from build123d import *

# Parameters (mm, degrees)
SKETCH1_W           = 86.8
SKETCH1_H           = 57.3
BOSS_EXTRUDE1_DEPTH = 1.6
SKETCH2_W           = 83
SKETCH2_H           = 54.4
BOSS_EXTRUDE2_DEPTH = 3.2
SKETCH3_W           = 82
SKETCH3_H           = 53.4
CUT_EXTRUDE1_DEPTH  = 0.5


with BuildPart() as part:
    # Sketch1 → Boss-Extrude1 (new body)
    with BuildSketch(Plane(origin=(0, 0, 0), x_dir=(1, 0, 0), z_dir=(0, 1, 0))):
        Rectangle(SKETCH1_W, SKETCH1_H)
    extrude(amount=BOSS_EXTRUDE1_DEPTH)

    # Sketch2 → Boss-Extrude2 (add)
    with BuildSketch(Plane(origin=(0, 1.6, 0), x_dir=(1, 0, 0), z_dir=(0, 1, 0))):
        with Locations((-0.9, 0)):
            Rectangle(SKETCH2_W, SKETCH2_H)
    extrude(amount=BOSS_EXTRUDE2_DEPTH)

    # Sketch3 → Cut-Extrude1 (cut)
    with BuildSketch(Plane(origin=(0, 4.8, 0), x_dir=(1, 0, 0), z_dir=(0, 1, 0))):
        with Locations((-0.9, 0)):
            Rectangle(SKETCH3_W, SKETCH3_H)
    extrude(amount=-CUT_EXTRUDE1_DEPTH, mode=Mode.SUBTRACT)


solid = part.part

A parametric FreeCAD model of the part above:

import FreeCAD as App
import Part
import Sketcher

doc = App.newDocument("Part")
body = doc.addObject("PartDesign::Body", "Body")

sketch1 = body.newObject("Sketcher::SketchObject", "Sketch")
sketch1.AttachmentSupport = (doc.getObject("XZ_Plane"), [""])
sketch1.MapMode = "FlatFace"
sketch1.addGeometry(Part.LineSegment(App.Vector(-43, -29, 0), App.Vector(-43, 29, 0)), False)
sketch1.addGeometry(Part.LineSegment(App.Vector(-43, 29, 0), App.Vector(43, 29, 0)), False)
sketch1.addGeometry(Part.LineSegment(App.Vector(43, 29, 0), App.Vector(43, -29, 0)), False)
sketch1.addGeometry(Part.LineSegment(App.Vector(43, -29, 0), App.Vector(-43, -29, 0)), False)
sketch1.addConstraint(Sketcher.Constraint("Coincident", 0, 2, 1, 1))
sketch1.addConstraint(Sketcher.Constraint("Coincident", 1, 2, 2, 1))
sketch1.addConstraint(Sketcher.Constraint("Coincident", 2, 2, 3, 1))
sketch1.addConstraint(Sketcher.Constraint("Coincident", 3, 2, 0, 1))
sketch1.addConstraint(Sketcher.Constraint("Vertical", 0))
sketch1.addConstraint(Sketcher.Constraint("Horizontal", 1))
sketch1.addConstraint(Sketcher.Constraint("Vertical", 2))
sketch1.addConstraint(Sketcher.Constraint("Horizontal", 3))
sketch1.addConstraint(Sketcher.Constraint("Symmetric", 0, 2, 2, 2, -1, 1))
sketch1.addConstraint(Sketcher.Constraint("DistanceX", 1, 1, 1, 2, 86.8))
sketch1.addConstraint(Sketcher.Constraint("DistanceY", 0, 1, 0, 2, 57.3))
pad1 = body.newObject("PartDesign::Pad", "Pad")
pad1.Profile = sketch1
pad1.Length = 1.6
pad1.Reversed = True

sketch2 = body.newObject("Sketcher::SketchObject", "Sketch001")
sketch2.AttachmentSupport = (doc.getObject("XZ_Plane"), [""])
sketch2.MapMode = "FlatFace"
sketch2.AttachmentOffset = App.Placement(App.Vector(0, 0, -1.6), App.Rotation())
sketch2.addGeometry(Part.LineSegment(App.Vector(-42, -27, 0), App.Vector(-42, 27, 0)), False)
sketch2.addGeometry(Part.LineSegment(App.Vector(-42, 27, 0), App.Vector(41, 27, 0)), False)
sketch2.addGeometry(Part.LineSegment(App.Vector(41, 27, 0), App.Vector(41, -27, 0)), False)
sketch2.addGeometry(Part.LineSegment(App.Vector(41, -27, 0), App.Vector(-42, -27, 0)), False)
sketch2.addConstraint(Sketcher.Constraint("Coincident", 0, 2, 1, 1))
sketch2.addConstraint(Sketcher.Constraint("Coincident", 1, 2, 2, 1))
sketch2.addConstraint(Sketcher.Constraint("Coincident", 2, 2, 3, 1))
sketch2.addConstraint(Sketcher.Constraint("Coincident", 3, 2, 0, 1))
sketch2.addConstraint(Sketcher.Constraint("Vertical", 0))
sketch2.addConstraint(Sketcher.Constraint("Horizontal", 1))
sketch2.addConstraint(Sketcher.Constraint("Vertical", 2))
sketch2.addConstraint(Sketcher.Constraint("Horizontal", 3))
sketch2.addConstraint(Sketcher.Constraint("DistanceX", 1, 1, 1, 2, 83.0))
sketch2.addConstraint(Sketcher.Constraint("DistanceY", 0, 1, 0, 2, 54.4))
sketch2.addConstraint(Sketcher.Constraint("DistanceX", 0, 2, -1, 1, 42.4))
sketch2.addConstraint(Sketcher.Constraint("DistanceY", -1, 1, 0, 2, 27.2))
pad2 = body.newObject("PartDesign::Pad", "Pad001")
pad2.Profile = sketch2
pad2.Length = 3.2
pad2.Reversed = True

sketch3 = body.newObject("Sketcher::SketchObject", "Sketch002")
sketch3.AttachmentSupport = (doc.getObject("XZ_Plane"), [""])
sketch3.MapMode = "FlatFace"
sketch3.AttachmentOffset = App.Placement(App.Vector(0, 0, -4.8), App.Rotation())
sketch3.addGeometry(Part.LineSegment(App.Vector(-42, -27, 0), App.Vector(-42, 27, 0)), False)
sketch3.addGeometry(Part.LineSegment(App.Vector(-42, 27, 0), App.Vector(40, 27, 0)), False)
sketch3.addGeometry(Part.LineSegment(App.Vector(40, 27, 0), App.Vector(40, -27, 0)), False)
sketch3.addGeometry(Part.LineSegment(App.Vector(40, -27, 0), App.Vector(-42, -27, 0)), False)
sketch3.addConstraint(Sketcher.Constraint("Coincident", 0, 2, 1, 1))
sketch3.addConstraint(Sketcher.Constraint("Coincident", 1, 2, 2, 1))
sketch3.addConstraint(Sketcher.Constraint("Coincident", 2, 2, 3, 1))
sketch3.addConstraint(Sketcher.Constraint("Coincident", 3, 2, 0, 1))
sketch3.addConstraint(Sketcher.Constraint("Vertical", 0))
sketch3.addConstraint(Sketcher.Constraint("Horizontal", 1))
sketch3.addConstraint(Sketcher.Constraint("Vertical", 2))
sketch3.addConstraint(Sketcher.Constraint("Horizontal", 3))
sketch3.addConstraint(Sketcher.Constraint("DistanceX", 1, 1, 1, 2, 82.0))
sketch3.addConstraint(Sketcher.Constraint("DistanceY", 0, 1, 0, 2, 53.4))
sketch3.addConstraint(Sketcher.Constraint("DistanceX", 0, 2, -1, 1, 41.9))
sketch3.addConstraint(Sketcher.Constraint("DistanceY", -1, 1, 0, 2, 26.7))
pocket1 = body.newObject("PartDesign::Pocket", "Pocket")
pocket1.Profile = sketch3
pocket1.Length = 0.5
pocket1.Reversed = True

doc.recompute()
